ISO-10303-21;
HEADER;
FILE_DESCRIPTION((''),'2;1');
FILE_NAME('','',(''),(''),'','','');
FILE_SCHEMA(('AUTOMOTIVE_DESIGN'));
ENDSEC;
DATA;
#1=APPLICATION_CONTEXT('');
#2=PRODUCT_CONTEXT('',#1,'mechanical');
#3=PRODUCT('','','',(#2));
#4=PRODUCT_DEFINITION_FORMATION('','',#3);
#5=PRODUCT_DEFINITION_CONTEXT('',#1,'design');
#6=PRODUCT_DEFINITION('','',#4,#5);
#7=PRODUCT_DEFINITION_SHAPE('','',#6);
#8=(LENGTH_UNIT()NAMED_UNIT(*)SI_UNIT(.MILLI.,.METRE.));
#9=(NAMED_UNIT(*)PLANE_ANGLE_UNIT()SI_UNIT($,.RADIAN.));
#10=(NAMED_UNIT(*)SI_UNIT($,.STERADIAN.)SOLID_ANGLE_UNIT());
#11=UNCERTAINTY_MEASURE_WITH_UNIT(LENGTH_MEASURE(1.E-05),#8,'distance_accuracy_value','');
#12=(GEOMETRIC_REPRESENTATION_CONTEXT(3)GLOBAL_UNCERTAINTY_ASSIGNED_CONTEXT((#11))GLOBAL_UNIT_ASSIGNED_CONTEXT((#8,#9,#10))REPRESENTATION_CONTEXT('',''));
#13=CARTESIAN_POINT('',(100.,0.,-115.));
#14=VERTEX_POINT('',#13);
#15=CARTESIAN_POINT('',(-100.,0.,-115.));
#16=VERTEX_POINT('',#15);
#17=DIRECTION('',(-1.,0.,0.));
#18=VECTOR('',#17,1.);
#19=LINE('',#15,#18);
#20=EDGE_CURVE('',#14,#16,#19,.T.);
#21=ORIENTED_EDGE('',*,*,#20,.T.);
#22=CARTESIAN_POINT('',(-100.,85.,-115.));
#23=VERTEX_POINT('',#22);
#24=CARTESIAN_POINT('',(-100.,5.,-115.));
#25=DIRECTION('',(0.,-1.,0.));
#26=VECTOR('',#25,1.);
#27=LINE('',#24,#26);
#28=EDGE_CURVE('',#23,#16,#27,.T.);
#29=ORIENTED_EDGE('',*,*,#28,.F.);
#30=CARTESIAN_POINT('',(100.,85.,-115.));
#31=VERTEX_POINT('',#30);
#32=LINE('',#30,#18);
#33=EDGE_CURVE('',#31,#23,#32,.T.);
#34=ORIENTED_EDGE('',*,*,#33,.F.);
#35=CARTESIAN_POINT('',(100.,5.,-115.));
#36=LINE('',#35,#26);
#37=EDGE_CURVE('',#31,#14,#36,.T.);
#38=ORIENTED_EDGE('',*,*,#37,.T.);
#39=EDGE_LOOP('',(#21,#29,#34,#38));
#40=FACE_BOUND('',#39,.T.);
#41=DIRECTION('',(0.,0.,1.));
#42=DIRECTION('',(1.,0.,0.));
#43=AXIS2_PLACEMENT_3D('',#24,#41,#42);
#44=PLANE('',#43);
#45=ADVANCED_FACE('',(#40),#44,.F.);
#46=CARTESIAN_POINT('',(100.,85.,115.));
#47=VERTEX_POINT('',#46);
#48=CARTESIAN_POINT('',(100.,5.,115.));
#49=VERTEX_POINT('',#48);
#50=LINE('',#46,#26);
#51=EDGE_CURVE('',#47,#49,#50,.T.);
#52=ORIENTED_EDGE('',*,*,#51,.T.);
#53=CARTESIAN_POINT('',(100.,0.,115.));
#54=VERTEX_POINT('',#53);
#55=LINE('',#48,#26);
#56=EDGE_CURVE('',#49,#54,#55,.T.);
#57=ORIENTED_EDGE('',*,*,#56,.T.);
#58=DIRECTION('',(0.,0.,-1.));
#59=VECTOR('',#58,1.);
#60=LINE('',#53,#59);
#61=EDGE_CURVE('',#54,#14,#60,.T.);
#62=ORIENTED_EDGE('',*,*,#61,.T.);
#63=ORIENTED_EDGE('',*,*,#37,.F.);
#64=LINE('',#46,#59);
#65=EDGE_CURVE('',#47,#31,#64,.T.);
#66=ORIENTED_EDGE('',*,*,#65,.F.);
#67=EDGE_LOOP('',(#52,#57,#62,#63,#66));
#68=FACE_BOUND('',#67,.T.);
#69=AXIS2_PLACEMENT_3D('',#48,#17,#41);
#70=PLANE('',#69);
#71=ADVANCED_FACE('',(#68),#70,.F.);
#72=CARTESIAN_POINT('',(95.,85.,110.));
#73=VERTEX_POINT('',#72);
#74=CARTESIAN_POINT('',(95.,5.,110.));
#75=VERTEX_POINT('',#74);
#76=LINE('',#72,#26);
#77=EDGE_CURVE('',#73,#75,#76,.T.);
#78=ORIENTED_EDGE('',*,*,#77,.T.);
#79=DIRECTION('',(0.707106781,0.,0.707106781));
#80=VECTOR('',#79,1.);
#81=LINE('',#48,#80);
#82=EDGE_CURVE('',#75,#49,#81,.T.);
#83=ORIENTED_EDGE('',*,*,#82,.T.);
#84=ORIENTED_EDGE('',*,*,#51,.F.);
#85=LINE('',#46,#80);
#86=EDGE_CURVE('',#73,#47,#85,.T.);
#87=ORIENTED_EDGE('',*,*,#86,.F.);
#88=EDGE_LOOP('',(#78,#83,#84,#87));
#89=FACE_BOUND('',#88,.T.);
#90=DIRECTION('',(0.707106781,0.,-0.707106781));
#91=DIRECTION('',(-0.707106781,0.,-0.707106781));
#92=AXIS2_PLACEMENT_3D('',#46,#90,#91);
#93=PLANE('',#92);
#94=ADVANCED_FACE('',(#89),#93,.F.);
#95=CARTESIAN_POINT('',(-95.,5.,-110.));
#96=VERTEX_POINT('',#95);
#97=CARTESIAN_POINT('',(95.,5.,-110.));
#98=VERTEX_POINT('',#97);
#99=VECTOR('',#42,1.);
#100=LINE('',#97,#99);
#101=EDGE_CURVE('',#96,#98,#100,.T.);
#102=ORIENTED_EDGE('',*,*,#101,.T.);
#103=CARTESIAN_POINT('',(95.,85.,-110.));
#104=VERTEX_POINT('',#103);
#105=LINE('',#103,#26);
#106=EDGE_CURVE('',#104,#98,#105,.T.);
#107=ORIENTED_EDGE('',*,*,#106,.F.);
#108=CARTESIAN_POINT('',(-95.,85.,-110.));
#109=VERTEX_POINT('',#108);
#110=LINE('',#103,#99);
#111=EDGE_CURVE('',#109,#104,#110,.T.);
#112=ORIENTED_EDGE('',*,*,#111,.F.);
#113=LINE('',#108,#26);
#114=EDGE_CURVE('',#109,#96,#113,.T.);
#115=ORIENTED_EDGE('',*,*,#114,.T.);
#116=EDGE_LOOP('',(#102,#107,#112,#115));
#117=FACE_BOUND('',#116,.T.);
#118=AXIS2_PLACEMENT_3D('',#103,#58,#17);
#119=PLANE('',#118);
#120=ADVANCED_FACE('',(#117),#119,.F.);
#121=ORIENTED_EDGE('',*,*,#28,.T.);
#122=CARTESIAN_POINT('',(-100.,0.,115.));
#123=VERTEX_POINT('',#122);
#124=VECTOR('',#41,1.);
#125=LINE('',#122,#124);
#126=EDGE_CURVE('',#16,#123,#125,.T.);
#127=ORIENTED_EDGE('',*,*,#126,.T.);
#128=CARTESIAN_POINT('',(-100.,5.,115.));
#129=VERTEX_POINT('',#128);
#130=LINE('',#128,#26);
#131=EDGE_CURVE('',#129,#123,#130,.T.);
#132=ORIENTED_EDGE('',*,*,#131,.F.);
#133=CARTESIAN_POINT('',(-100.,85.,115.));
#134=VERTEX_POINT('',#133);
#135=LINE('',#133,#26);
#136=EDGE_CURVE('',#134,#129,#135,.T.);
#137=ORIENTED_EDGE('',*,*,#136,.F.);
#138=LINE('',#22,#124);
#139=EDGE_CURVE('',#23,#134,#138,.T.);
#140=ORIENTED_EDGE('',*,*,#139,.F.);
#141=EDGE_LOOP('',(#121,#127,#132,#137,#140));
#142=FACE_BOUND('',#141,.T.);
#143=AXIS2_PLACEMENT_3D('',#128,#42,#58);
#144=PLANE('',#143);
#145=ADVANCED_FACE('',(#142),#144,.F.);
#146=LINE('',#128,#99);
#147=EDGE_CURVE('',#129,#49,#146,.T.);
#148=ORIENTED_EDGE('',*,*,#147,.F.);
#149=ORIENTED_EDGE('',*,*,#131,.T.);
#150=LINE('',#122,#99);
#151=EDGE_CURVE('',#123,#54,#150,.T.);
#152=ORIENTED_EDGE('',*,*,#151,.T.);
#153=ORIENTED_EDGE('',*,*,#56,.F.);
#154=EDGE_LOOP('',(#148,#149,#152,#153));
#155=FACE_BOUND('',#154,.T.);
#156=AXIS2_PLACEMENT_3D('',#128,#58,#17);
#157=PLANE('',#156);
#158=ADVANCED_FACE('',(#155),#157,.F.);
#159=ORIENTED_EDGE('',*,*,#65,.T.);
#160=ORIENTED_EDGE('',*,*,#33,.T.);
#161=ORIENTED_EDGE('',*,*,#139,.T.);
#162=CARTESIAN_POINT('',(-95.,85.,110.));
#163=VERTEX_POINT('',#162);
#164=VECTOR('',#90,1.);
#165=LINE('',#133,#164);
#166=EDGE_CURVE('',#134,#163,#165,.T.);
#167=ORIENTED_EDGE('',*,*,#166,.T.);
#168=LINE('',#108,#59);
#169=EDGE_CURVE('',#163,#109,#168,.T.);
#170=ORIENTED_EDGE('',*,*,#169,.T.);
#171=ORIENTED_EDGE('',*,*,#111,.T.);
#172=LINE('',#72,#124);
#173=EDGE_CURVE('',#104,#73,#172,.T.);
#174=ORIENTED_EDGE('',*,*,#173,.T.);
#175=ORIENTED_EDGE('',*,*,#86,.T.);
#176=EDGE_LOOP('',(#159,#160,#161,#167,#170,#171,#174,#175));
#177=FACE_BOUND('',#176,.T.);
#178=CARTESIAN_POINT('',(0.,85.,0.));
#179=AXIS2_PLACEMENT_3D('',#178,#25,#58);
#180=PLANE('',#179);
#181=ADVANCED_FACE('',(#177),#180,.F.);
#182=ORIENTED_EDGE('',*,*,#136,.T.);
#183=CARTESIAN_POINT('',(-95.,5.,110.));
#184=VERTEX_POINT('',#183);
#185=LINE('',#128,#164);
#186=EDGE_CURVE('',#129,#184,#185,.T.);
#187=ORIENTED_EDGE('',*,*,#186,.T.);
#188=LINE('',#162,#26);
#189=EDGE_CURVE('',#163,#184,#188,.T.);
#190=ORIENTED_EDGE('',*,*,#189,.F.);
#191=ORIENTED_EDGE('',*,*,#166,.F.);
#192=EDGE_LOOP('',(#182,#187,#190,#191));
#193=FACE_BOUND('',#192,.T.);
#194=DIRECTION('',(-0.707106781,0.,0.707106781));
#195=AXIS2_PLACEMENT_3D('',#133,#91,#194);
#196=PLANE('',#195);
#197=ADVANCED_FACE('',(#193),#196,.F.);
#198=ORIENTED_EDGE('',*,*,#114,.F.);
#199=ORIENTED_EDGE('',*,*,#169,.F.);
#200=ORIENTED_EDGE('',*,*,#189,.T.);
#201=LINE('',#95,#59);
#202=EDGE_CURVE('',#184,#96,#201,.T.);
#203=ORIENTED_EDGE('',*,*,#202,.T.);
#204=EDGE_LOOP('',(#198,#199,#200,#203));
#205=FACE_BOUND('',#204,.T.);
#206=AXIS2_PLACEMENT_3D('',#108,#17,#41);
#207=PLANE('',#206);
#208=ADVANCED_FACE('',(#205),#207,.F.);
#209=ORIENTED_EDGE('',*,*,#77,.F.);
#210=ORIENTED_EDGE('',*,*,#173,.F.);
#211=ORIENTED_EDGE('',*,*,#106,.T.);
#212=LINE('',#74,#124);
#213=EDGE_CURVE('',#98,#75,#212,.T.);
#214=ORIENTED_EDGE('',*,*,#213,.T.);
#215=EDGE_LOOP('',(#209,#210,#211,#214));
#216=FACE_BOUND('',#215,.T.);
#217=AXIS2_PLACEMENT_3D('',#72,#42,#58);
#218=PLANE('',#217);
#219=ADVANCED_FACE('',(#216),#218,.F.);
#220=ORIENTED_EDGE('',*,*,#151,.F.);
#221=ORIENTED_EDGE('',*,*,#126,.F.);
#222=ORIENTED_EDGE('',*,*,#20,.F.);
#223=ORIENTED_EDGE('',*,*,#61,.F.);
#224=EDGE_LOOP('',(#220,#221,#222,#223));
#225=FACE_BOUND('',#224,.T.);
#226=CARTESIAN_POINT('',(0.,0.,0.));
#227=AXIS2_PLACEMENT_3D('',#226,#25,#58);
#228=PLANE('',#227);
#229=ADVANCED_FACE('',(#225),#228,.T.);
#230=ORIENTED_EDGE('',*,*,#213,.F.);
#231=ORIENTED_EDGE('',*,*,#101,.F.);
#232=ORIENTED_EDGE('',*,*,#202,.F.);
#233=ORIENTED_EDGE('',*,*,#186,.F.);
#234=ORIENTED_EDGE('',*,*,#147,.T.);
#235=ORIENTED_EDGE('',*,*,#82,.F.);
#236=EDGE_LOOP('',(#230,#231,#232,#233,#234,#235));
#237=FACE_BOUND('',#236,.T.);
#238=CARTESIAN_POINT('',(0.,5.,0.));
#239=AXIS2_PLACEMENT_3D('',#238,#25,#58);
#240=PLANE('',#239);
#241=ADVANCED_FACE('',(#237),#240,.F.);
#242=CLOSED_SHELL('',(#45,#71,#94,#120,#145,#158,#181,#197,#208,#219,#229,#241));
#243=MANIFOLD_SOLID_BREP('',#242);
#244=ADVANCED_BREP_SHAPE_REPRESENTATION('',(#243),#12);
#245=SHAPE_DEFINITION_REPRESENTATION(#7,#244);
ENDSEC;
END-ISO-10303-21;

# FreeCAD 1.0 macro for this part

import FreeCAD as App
import Part
import Sketcher

V = App.Vector
Q = App.Units.Quantity

doc = App.newDocument("Part")
body = doc.addObject("PartDesign::Body", "Body")

sketch1 = body.newObject("Sketcher::SketchObject", "Sketch")
sketch1.AttachmentSupport = (doc.getObject("XZ_Plane"), [""])
sketch1.MapMode = "FlatFace"
sketch1.addGeometry(Part.LineSegment(V(-100, -115, 0), V(-100, 115, 0)), False)
sketch1.addGeometry(Part.LineSegment(V(-100, 115, 0), V(100, 115, 0)), False)
sketch1.addGeometry(Part.LineSegment(V(100, 115, 0), V(100, -115, 0)), False)
sketch1.addGeometry(Part.LineSegment(V(100, -115, 0), V(-100, -115, 0)), False)
sketch1.addConstraint(Sketcher.Constraint("Coincident", 0, 2, 1, 1))
sketch1.addConstraint(Sketcher.Constraint("Coincident", 1, 2, 2, 1))
sketch1.addConstraint(Sketcher.Constraint("Coincident", 2, 2, 3, 1))
sketch1.addConstraint(Sketcher.Constraint("Coincident", 3, 2, 0, 1))
sketch1.addConstraint(Sketcher.Constraint("Vertical", 0))
sketch1.addConstraint(Sketcher.Constraint("Horizontal", 1))
sketch1.addConstraint(Sketcher.Constraint("Vertical", 2))
sketch1.addConstraint(Sketcher.Constraint("Horizontal", 3))
sketch1.addConstraint(Sketcher.Constraint("Symmetric", 0, 2, 2, 2, -1, 1))
sketch1.addConstraint(Sketcher.Constraint("DistanceX", 1, 1, 1, 2, Q("200 mm")))
sketch1.addConstraint(Sketcher.Constraint("DistanceY", 0, 1, 0, 2, Q("230 mm")))
pad1 = body.newObject("PartDesign::Pad", "Pad")
pad1.Profile = sketch1
pad1.Length = 5
pad1.Reversed = True

sketch2 = body.newObject("Sketcher::SketchObject", "Sketch001")
sketch2.AttachmentSupport = (doc.getObject("XZ_Plane"), [""])
sketch2.MapMode = "FlatFace"
sketch2.AttachmentOffset = App.Placement(V(0, 0, -5), App.Rotation())
sketch2.addGeometry(Part.LineSegment(V(100, 115, 0), V(100, -115, 0)), False)
sketch2.addGeometry(Part.LineSegment(V(100, -115, 0), V(-100, -115, 0)), False)
sketch2.addGeometry(Part.LineSegment(V(-100, -115, 0), V(-100, 115, 0)), False)
sketch2.addGeometry(Part.LineSegment(V(-100, 115, 0), V(-95, 110, 0)), False)
sketch2.addGeometry(Part.LineSegment(V(-95, 110, 0), V(-95, -110, 0)), False)
sketch2.addGeometry(Part.LineSegment(V(-95, -110, 0), V(95, -110, 0)), False)
sketch2.addGeometry(Part.LineSegment(V(95, -110, 0), V(95, 110, 0)), False)
sketch2.addGeometry(Part.LineSegment(V(95, 110, 0), V(100, 115, 0)), False)
sketch2.addConstraint(Sketcher.Constraint("Coincident", 0, 2, 1, 1))
sketch2.addConstraint(Sketcher.Constraint("Coincident", 1, 2, 2, 1))
sketch2.addConstraint(Sketcher.Constraint("Coincident", 2, 2, 3, 1))
sketch2.addConstraint(Sketcher.Constraint("Coincident", 3, 2, 4, 1))
sketch2.addConstraint(Sketcher.Constraint("Coincident", 4, 2, 5, 1))
sketch2.addConstraint(Sketcher.Constraint("Coincident", 5, 2, 6, 1))
sketch2.addConstraint(Sketcher.Constraint("Coincident", 6, 2, 7, 1))
sketch2.addConstraint(Sketcher.Constraint("Coincident", 7, 2, 0, 1))
sketch2.addConstraint(Sketcher.Constraint("Vertical", 0))
sketch2.addConstraint(Sketcher.Constraint("Horizontal", 1))
sketch2.addConstraint(Sketcher.Constraint("Vertical", 2))
sketch2.addConstraint(Sketcher.Constraint("Vertical", 4))
sketch2.addConstraint(Sketcher.Constraint("Horizontal", 5))
sketch2.addConstraint(Sketcher.Constraint("Vertical", 6))
sketch2.addConstraint(Sketcher.Constraint("Symmetric", 0, 2, 2, 2, -1, 1))
sketch2.addConstraint(Sketcher.Constraint("Symmetric", 3, 2, 5, 2, -1, 1))
sketch2.addConstraint(Sketcher.Constraint("Perpendicular", 3, 7))
sketch2.addConstraint(Sketcher.Constraint("Horizontal", 3, 2, 6, 2))
sketch2.addConstraint(Sketcher.Constraint("Horizontal", 2, 2, 7, 2))
sketch2.addConstraint(Sketcher.Constraint("DistanceX", 1, 2, 1, 1, Q("200 mm")))
sketch2.addConstraint(Sketcher.Constraint("DistanceX", 5, 1, 5, 2, Q("190 mm")))
sketch2.addConstraint(Sketcher.Constraint("DistanceY", 0, 2, 0, 1, Q("230 mm")))
pad2 = body.newObject("PartDesign::Pad", "Pad001")
pad2.Profile = sketch2
pad2.Length = 80
pad2.Reversed = True

doc.recompute()
